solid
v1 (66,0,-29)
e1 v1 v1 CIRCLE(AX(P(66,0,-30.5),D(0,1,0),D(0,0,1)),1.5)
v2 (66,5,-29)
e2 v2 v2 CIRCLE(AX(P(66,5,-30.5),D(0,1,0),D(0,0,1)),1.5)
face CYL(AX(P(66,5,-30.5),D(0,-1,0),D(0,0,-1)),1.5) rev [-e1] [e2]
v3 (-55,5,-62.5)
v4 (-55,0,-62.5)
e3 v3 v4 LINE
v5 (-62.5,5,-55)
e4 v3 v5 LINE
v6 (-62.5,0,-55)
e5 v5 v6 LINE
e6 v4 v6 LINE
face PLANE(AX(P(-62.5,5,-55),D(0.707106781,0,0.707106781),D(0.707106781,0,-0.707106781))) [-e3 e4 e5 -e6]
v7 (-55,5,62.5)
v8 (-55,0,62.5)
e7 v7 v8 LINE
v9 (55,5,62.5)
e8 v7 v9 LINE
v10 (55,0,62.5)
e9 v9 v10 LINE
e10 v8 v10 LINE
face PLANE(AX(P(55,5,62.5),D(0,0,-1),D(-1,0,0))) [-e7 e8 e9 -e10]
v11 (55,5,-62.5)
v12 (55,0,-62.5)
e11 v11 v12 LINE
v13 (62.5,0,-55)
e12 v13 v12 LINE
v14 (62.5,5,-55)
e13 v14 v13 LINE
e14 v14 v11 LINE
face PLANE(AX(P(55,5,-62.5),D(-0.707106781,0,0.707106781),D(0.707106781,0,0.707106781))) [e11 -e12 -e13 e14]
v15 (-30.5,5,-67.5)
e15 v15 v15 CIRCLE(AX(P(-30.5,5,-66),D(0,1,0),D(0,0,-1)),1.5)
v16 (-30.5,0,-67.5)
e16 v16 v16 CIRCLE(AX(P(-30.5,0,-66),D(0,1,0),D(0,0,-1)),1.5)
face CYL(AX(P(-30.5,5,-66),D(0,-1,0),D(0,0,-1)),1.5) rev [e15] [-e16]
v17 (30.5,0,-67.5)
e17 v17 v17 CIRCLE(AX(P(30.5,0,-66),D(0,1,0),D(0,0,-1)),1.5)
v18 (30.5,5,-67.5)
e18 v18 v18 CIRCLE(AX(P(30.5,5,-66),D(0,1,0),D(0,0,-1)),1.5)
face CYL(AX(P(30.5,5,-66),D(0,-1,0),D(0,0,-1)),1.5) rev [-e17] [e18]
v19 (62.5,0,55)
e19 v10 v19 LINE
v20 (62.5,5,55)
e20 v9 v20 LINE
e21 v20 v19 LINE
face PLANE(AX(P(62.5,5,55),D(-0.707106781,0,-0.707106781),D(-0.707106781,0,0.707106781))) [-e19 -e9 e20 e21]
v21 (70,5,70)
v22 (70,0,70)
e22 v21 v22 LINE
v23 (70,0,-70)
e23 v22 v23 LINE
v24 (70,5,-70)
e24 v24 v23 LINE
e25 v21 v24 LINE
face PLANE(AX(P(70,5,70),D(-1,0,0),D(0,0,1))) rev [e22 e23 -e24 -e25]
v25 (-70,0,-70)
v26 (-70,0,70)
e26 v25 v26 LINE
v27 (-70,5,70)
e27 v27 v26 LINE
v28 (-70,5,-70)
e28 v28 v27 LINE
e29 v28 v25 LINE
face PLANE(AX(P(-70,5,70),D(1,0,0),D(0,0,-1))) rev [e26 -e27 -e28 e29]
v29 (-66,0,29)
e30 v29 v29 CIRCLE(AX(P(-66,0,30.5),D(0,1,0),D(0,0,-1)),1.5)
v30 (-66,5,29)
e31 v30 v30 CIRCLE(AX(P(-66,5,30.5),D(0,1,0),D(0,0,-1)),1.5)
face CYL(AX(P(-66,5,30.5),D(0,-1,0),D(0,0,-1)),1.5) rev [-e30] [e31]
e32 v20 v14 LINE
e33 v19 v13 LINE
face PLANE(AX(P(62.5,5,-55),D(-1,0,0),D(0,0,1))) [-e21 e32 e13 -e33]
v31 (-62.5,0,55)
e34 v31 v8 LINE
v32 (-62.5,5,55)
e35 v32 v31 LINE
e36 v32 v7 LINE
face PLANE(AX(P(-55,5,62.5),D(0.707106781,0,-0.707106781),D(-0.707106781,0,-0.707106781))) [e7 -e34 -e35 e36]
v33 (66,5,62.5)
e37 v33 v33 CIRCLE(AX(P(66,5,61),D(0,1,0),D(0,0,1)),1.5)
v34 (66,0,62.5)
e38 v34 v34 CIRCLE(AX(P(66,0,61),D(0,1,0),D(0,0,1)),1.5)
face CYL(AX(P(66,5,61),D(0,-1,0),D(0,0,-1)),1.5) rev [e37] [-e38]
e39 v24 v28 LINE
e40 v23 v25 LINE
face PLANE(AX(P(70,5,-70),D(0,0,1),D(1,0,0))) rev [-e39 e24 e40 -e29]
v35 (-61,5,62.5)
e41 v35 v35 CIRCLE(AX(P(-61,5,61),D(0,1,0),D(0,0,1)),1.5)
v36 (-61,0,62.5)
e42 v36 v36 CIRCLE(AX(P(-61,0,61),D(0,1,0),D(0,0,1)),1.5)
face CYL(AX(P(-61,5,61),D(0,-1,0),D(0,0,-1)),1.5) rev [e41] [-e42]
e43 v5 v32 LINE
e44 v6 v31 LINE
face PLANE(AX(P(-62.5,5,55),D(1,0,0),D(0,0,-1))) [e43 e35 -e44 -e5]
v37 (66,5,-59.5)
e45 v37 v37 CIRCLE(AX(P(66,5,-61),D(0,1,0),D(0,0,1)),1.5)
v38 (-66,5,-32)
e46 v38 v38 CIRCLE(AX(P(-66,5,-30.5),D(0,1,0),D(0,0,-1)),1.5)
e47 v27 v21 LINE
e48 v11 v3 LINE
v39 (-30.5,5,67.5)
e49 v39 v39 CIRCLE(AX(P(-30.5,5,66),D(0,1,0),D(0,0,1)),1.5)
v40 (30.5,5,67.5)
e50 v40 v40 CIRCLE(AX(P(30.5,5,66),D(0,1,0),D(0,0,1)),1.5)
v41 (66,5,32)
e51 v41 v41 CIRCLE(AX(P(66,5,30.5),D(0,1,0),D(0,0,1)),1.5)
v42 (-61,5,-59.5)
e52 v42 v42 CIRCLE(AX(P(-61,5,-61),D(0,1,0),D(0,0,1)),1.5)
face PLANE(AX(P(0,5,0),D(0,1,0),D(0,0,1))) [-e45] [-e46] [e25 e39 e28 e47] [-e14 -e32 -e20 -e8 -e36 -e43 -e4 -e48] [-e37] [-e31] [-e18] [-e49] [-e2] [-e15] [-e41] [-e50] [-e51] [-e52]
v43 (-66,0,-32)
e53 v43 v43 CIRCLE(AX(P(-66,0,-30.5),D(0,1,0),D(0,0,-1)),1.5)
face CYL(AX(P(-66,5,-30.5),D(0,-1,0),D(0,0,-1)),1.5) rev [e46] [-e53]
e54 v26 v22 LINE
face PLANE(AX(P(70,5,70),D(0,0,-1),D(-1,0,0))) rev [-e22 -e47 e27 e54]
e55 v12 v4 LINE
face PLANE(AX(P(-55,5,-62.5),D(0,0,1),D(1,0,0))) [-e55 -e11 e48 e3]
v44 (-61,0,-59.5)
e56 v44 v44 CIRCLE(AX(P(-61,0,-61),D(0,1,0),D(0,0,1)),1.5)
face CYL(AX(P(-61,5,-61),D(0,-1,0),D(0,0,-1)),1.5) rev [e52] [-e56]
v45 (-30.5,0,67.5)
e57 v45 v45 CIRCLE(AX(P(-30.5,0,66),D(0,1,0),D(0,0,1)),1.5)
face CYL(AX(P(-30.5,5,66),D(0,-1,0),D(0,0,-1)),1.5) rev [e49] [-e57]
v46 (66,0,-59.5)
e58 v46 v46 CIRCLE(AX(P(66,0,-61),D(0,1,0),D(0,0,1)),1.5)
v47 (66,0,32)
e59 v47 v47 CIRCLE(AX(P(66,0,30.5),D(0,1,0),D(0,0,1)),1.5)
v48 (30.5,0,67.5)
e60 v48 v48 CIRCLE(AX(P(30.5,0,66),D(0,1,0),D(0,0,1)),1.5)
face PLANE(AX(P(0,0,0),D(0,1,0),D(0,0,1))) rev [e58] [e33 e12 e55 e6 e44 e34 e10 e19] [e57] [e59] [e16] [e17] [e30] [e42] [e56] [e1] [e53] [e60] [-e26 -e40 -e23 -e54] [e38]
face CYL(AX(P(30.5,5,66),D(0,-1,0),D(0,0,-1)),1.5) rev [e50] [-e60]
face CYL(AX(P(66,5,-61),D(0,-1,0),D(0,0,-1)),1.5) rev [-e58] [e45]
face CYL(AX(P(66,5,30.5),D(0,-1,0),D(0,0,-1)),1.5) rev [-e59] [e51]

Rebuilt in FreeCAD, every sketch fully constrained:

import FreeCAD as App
import Part
import Sketcher
from FreeCAD import Vector

doc = App.newDocument("Part")
body = doc.addObject("PartDesign::Body", "Body")

# Sketch on XZ plane
sketch1 = body.newObject("Sketcher::SketchObject", "Sketch")
sketch1.AttachmentSupport = (doc.getObject("XZ_Plane"), [""])
sketch1.MapMode = "FlatFace"
sketch1.addGeometry(Part.LineSegment(Vector(-70, -70, 0), Vector(-70, 70, 0)), False)
sketch1.addGeometry(Part.LineSegment(Vector(-70, 70, 0), Vector(70, 70, 0)), False)
sketch1.addGeometry(Part.LineSegment(Vector(70, 70, 0), Vector(70, -70, 0)), False)
sketch1.addGeometry(Part.LineSegment(Vector(70, -70, 0), Vector(-70, -70, 0)), False)
sketch1.addGeometry(Part.Circle(Vector(-61, 61, 0), Vector(0, 0, 1), 1.5), False)
sketch1.addGeometry(Part.Circle(Vector(-30.5, 66, 0), Vector(0, 0, 1), 1.5), False)
sketch1.addGeometry(Part.Circle(Vector(-66, 30.5, 0), Vector(0, 0, 1), 1.5), False)
sketch1.addGeometry(Part.Circle(Vector(30.5, 66, 0), Vector(0, 0, 1), 1.5), False)
sketch1.addGeometry(Part.Circle(Vector(66, 61, 0), Vector(0, 0, 1), 1.5), False)
sketch1.addGeometry(Part.Circle(Vector(66, 30.5, 0), Vector(0, 0, 1), 1.5), False)
sketch1.addGeometry(Part.Circle(Vector(-66, -30.5, 0), Vector(0, 0, 1), 1.5), False)
sketch1.addGeometry(Part.Circle(Vector(-61, -61, 0), Vector(0, 0, 1), 1.5), False)
sketch1.addGeometry(Part.Circle(Vector(-30.5, -66, 0), Vector(0, 0, 1), 1.5), False)
sketch1.addGeometry(Part.LineSegment(Vector(55, 62.5, 0), Vector(-55, 62.5, 0)), False)
sketch1.addGeometry(Part.LineSegment(Vector(-55, 62.5, 0), Vector(-62.5, 55, 0)), False)
sketch1.addGeometry(Part.LineSegment(Vector(-62.5, 55, 0), Vector(-62.5, -55, 0)), False)
sketch1.addGeometry(Part.LineSegment(Vector(-62.5, -55, 0), Vector(-55, -62.5, 0)), False)
sketch1.addGeometry(Part.LineSegment(Vector(-55, -62.5, 0), Vector(55, -62.5, 0)), False)
sketch1.addGeometry(Part.LineSegment(Vector(55, -62.5, 0), Vector(62.5, -55, 0)), False)
sketch1.addGeometry(Part.LineSegment(Vector(62.5, -55, 0), Vector(62.5, 55, 0)), False)
sketch1.addGeometry(Part.LineSegment(Vector(62.5, 55, 0), Vector(55, 62.5, 0)), False)
sketch1.addGeometry(Part.Circle(Vector(66, -30.5, 0), Vector(0, 0, 1), 1.5), False)
sketch1.addGeometry(Part.Circle(Vector(30.5, -66, 0), Vector(0, 0, 1), 1.5), False)
sketch1.addGeometry(Part.Circle(Vector(66, -61, 0), Vector(0, 0, 1), 1.5), False)
sketch1.addConstraint(Sketcher.Constraint("Coincident", 0, 2, 1, 1))
sketch1.addConstraint(Sketcher.Constraint("Coincident", 1, 2, 2, 1))
sketch1.addConstraint(Sketcher.Constraint("Coincident", 2, 2, 3, 1))
sketch1.addConstraint(Sketcher.Constraint("Coincident", 3, 2, 0, 1))
sketch1.addConstraint(Sketcher.Constraint("Coincident", 13, 2, 14, 1))
sketch1.addConstraint(Sketcher.Constraint("Coincident", 14, 2, 15, 1))
sketch1.addConstraint(Sketcher.Constraint("Coincident", 15, 2, 16, 1))
sketch1.addConstraint(Sketcher.Constraint("Coincident", 16, 2, 17, 1))
sketch1.addConstraint(Sketcher.Constraint("Coincident", 17, 2, 18, 1))
sketch1.addConstraint(Sketcher.Constraint("Coincident", 18, 2, 19, 1))
sketch1.addConstraint(Sketcher.Constraint("Coincident", 19, 2, 20, 1))
sketch1.addConstraint(Sketcher.Constraint("Coincident", 20, 2, 13, 1))
sketch1.addConstraint(Sketcher.Constraint("Vertical", 0))
sketch1.addConstraint(Sketcher.Constraint("Horizontal", 1))
sketch1.addConstraint(Sketcher.Constraint("Vertical", 2))
sketch1.addConstraint(Sketcher.Constraint("Horizontal", 3))
sketch1.addConstraint(Sketcher.Constraint("Horizontal", 13))
sketch1.addConstraint(Sketcher.Constraint("Vertical", 15))
sketch1.addConstraint(Sketcher.Constraint("Horizontal", 17))
sketch1.addConstraint(Sketcher.Constraint("Vertical", 19))
sketch1.addConstraint(Sketcher.Constraint("Equal", 4, 5))
sketch1.addConstraint(Sketcher.Constraint("Equal", 5, 6))
sketch1.addConstraint(Sketcher.Constraint("Equal", 6, 7))
sketch1.addConstraint(Sketcher.Constraint("Equal", 7, 8))
sketch1.addConstraint(Sketcher.Constraint("Equal", 8, 9))
sketch1.addConstraint(Sketcher.Constraint("Equal", 9, 10))
sketch1.addConstraint(Sketcher.Constraint("Equal", 10, 11))
sketch1.addConstraint(Sketcher.Constraint("Equal", 11, 12))
sketch1.addConstraint(Sketcher.Constraint("Equal", 12, 21))
sketch1.addConstraint(Sketcher.Constraint("Equal", 21, 22))
sketch1.addConstraint(Sketcher.Constraint("Equal", 22, 23))
sketch1.addConstraint(Sketcher.Constraint("Symmetric", 9, 3, 10, 3, -1, 1))
sketch1.addConstraint(Sketcher.Constraint("Symmetric", 7, 3, 12, 3, -1, 1))
sketch1.addConstraint(Sketcher.Constraint("Symmetric", 6, 3, 21, 3, -1, 1))
sketch1.addConstraint(Sketcher.Constraint("Symmetric", 5, 3, 22, 3, -1, 1))
sketch1.addConstraint(Sketcher.Constraint("Symmetric", 0, 2, 2, 2, -1, 1))
sketch1.addConstraint(Sketcher.Constraint("Symmetric", 13, 2, 17, 2, -1, 1))
sketch1.addConstraint(Sketcher.Constraint("Symmetric", 14, 2, 18, 2, -1, 1))
sketch1.addConstraint(Sketcher.Constraint("Symmetric", 5, 3, 7, 3, -2))
sketch1.addConstraint(Sketcher.Constraint("Symmetric", 6, 3, 9, 3, -2))
sketch1.addConstraint(Sketcher.Constraint("Symmetric", 4, 3, 11, 3, -1))
sketch1.addConstraint(Sketcher.Constraint("Symmetric", 8, 3, 23, 3, -1))
sketch1.addConstraint(Sketcher.Constraint("Perpendicular", 14, 16))
sketch1.addConstraint(Sketcher.Constraint("Perpendicular", 18, 20))
sketch1.addConstraint(Sketcher.Constraint("Horizontal", 4, 3, 8, 3))
sketch1.addConstraint(Sketcher.Constraint("Horizontal", 15, 2, 18, 2))
sketch1.addConstraint(Sketcher.Constraint("Horizontal", 14, 2, 19, 2))
sketch1.addConstraint(Sketcher.Constraint("Vertical", 8, 3, 9, 3))
sketch1.addConstraint(Sketcher.Constraint("Vertical", 13, 2, 16, 2))
sketch1.addConstraint(Sketcher.Constraint("Equal", 3, 0))
sketch1.addConstraint(Sketcher.Constraint("Equal", 17, 15))
sketch1.addConstraint(Sketcher.Constraint("Diameter", 4, 3.0))
sketch1.addConstraint(Sketcher.Constraint("DistanceX", 1, 1, 1, 2, 140.0))
sketch1.addConstraint(Sketcher.Constraint("DistanceX", 13, 2, 13, 1, 110.0))
sketch1.addConstraint(Sketcher.Constraint("DistanceX", 4, 3, -1, 1, 61.0))
sketch1.addConstraint(Sketcher.Constraint("DistanceY", -1, 1, 4, 3, 61.0))
sketch1.addConstraint(Sketcher.Constraint("DistanceY", -1, 1, 5, 3, 66.0))
sketch1.addConstraint(Sketcher.Constraint("DistanceX", 6, 3, -1, 1, 66.0))
sketch1.addConstraint(Sketcher.Constraint("DistanceX", 5, 3, 7, 3, 61.0))
sketch1.addConstraint(Sketcher.Constraint("DistanceY", 10, 3, 6, 3, 61.0))
sketch1.addConstraint(Sketcher.Constraint("DistanceY", 6, 3, 13, 2, 32.0))
pad1 = body.newObject("PartDesign::Pad", "Pad")
pad1.Profile = sketch1
pad1.Length = 5
pad1.Reversed = True

doc.recompute()
